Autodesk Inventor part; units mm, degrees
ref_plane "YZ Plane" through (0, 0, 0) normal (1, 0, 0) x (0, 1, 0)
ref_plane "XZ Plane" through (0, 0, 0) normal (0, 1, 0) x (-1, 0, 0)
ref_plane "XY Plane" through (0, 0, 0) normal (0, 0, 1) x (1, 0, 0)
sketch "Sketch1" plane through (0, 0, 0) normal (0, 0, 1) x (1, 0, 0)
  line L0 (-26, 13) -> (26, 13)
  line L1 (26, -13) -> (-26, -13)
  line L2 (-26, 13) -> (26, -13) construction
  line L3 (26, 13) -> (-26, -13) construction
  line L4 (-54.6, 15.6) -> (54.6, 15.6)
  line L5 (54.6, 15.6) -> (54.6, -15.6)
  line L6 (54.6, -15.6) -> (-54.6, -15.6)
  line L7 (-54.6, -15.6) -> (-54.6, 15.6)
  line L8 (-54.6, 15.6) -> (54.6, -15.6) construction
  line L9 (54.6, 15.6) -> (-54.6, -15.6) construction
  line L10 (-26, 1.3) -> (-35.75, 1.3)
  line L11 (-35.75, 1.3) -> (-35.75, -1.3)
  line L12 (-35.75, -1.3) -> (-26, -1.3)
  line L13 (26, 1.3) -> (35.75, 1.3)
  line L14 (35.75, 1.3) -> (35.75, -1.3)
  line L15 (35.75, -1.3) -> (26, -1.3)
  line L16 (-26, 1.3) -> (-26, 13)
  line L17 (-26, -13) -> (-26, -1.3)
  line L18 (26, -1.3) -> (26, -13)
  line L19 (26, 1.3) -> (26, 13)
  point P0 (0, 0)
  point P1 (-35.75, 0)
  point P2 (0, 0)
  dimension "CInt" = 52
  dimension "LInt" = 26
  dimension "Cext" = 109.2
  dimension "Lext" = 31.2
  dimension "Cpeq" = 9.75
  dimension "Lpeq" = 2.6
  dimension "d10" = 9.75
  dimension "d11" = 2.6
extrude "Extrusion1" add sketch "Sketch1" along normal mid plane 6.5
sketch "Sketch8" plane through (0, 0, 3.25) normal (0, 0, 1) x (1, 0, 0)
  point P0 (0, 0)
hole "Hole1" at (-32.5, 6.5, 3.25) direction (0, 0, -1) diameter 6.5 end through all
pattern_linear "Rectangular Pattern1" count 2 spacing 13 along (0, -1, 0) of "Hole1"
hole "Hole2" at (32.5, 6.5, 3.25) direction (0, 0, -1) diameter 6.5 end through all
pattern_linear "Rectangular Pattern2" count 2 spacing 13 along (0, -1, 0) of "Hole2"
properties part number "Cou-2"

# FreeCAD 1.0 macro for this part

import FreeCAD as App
import Part
import Sketcher
from FreeCAD import Vector


def add_polygon(sketch, points):
    """Adds a closed chain of lines whose ends are joined by coincident constraints."""
    first, n = sketch.GeometryCount, len(points)
    for a, b in zip(points, points[1:] + points[:1]):
        sketch.addGeometry(Part.LineSegment(App.Vector(*a, 0), App.Vector(*b, 0)), False)
    for i in range(n):
        sketch.addConstraint(Sketcher.Constraint("Coincident", first + i, 2, first + (i + 1) % n, 1))

doc = App.newDocument("Part")
params = doc.addObject("Spreadsheet::Sheet", "Params")
for row, (alias, value) in enumerate([
    ("sketch1_width", "52 mm"),
    ("sketch1_width2", "109.2 mm"),
    ("sketch1_height", "31.2 mm"),
    ("sketch1_height2", "2.6 mm"),
    ("sketch1_width3", "9.75 mm"),
    ("pad1_length", "6.5 mm"),
    ("sketch2_diameter", "6.5 mm"),
    ("hole_diameter", "6.5 mm"),
    ("linearpattern_pitch", "13 mm"),
    ("sketch3_diameter", "6.5 mm"),
    ("hole2_diameter", "6.5 mm"),
    ("linearpattern2_pitch", "13 mm"),
], start=1):
    params.set(f"A{row}", alias)
    params.set(f"B{row}", "=" + value)
    params.setAlias(f"B{row}", alias)

body = doc.addObject("PartDesign::Body", "Body")

# Sketch on XY plane
sketch1 = body.newObject("Sketcher::SketchObject", "Sketch")
sketch1.AttachmentSupport = (doc.getObject("XY_Plane"), [""])
sketch1.MapMode = "FlatFace"
add_polygon(sketch1, [(54.6, 15.6), (-54.6, 15.6), (-54.6, -15.6), (54.6, -15.6)])  # lines 0-3
add_polygon(sketch1, [(-26, 1.3), (-26, 13), (26, 13), (26, 1.3), (35.8, 1.3), (35.8, -1.3), (26, -1.3), (26, -13), (-26, -13), (-26, -1.3), (-35.8, -1.3), (-35.8, 1.3)])  # lines 4-15
sketch1.addConstraint(Sketcher.Constraint("Horizontal", 0))
sketch1.addConstraint(Sketcher.Constraint("Vertical", 1))
sketch1.addConstraint(Sketcher.Constraint("Horizontal", 2))
sketch1.addConstraint(Sketcher.Constraint("Vertical", 3))
sketch1.addConstraint(Sketcher.Constraint("Vertical", 4))
sketch1.addConstraint(Sketcher.Constraint("Horizontal", 5))
sketch1.addConstraint(Sketcher.Constraint("Vertical", 6))
sketch1.addConstraint(Sketcher.Constraint("Horizontal", 7))
sketch1.addConstraint(Sketcher.Constraint("Vertical", 8))
sketch1.addConstraint(Sketcher.Constraint("Horizontal", 9))
sketch1.addConstraint(Sketcher.Constraint("Vertical", 10))
sketch1.addConstraint(Sketcher.Constraint("Horizontal", 11))
sketch1.addConstraint(Sketcher.Constraint("Vertical", 12))
sketch1.addConstraint(Sketcher.Constraint("Horizontal", 13))
sketch1.addConstraint(Sketcher.Constraint("Vertical", 14))
sketch1.addConstraint(Sketcher.Constraint("Horizontal", 15))
sketch1.addConstraint(Sketcher.Constraint("Symmetric", 0, 2, 2, 2, -1, 1))
sketch1.addConstraint(Sketcher.Constraint("Symmetric", 4, 2, 10, 2, -1, 1))
sketch1.addConstraint(Sketcher.Constraint("Symmetric", 6, 2, 12, 2, -1, 1))
sketch1.addConstraint(Sketcher.Constraint("Symmetric", 8, 2, 14, 2, -1, 1))
sketch1.addConstraint(Sketcher.Constraint("Symmetric", 9, 2, 12, 2, -2))
sketch1.addConstraint(Sketcher.Constraint("DistanceX", 5, 1, 5, 2, 52.0))
sketch1.addConstraint(Sketcher.Constraint("DistanceX", 0, 2, 0, 1, 109.2))
sketch1.addConstraint(Sketcher.Constraint("DistanceY", 1, 2, 1, 1, 31.2))
sketch1.addConstraint(Sketcher.Constraint("DistanceY", 8, 2, 8, 1, 2.6))
sketch1.addConstraint(Sketcher.Constraint("DistanceY", 10, 2, 5, 2, 26.0))
sketch1.addConstraint(Sketcher.Constraint("DistanceX", 7, 1, 7, 2, 9.75))
sketch1.setExpression("Constraints[37]", "Params.sketch1_width")
sketch1.setExpression("Constraints[38]", "Params.sketch1_width2")
sketch1.setExpression("Constraints[39]", "Params.sketch1_height")
sketch1.setExpression("Constraints[40]", "Params.sketch1_height2")
sketch1.setExpression("Constraints[42]", "Params.sketch1_width3")
pad1 = body.newObject("PartDesign::Pad", "Pad")
pad1.Profile = sketch1
pad1.setExpression("Length", "Params.pad1_length")
pad1.Midplane = True

# Sketch on XY plane
sketch2 = body.newObject("Sketcher::SketchObject", "Sketch001")
sketch2.AttachmentSupport = (doc.getObject("XY_Plane"), [""])
sketch2.MapMode = "FlatFace"
sketch2.AttachmentOffset = App.Placement(Vector(0, 0, 3.25), App.Rotation())
sketch2.addGeometry(Part.Circle(Vector(-32.5, 6.5, 0), Vector(0, 0, 1), 3.2), False)
sketch2.addConstraint(Sketcher.Constraint("Diameter", 0, 6.5))
sketch2.addConstraint(Sketcher.Constraint("DistanceX", 0, 3, -1, 1, 32.5))
sketch2.addConstraint(Sketcher.Constraint("DistanceY", -1, 1, 0, 3, 6.5))
sketch2.setExpression("Constraints[0]", "Params.sketch2_diameter")
doc.recompute()
hole = body.newObject("PartDesign::Hole", "Hole")
hole.Profile = sketch2
hole.ThreadType = "None"
hole.setExpression("Diameter", "Params.hole_diameter")
hole.DepthType = "ThroughAll"
doc.recompute()

linearpattern = body.newObject("PartDesign::LinearPattern", "LinearPattern")
linearpattern.Originals = [hole]
linearpattern.Direction = (doc.getObject("Y_Axis"), [""])
linearpattern.Mode = "offset"
linearpattern.setExpression("Offset", "Params.linearpattern_pitch")
linearpattern.Occurrences = 2
linearpattern.Reversed = True
body.Tip = linearpattern

# Sketch on XY plane
sketch3 = body.newObject("Sketcher::SketchObject", "Sketch002")
sketch3.AttachmentSupport = (doc.getObject("XY_Plane"), [""])
sketch3.MapMode = "FlatFace"
sketch3.AttachmentOffset = App.Placement(Vector(0, 0, 3.25), App.Rotation())
sketch3.addGeometry(Part.Circle(Vector(32.5, 6.5, 0), Vector(0, 0, 1), 3.2), False)
sketch3.addConstraint(Sketcher.Constraint("Diameter", 0, 6.5))
sketch3.addConstraint(Sketcher.Constraint("DistanceX", -1, 1, 0, 3, 32.5))
sketch3.addConstraint(Sketcher.Constraint("DistanceY", -1, 1, 0, 3, 6.5))
sketch3.setExpression("Constraints[0]", "Params.sketch3_diameter")
doc.recompute()
hole2 = body.newObject("PartDesign::Hole", "Hole001")
hole2.Profile = sketch3
hole2.ThreadType = "None"
hole2.setExpression("Diameter", "Params.hole2_diameter")
hole2.DepthType = "ThroughAll"
doc.recompute()

linearpattern2 = body.newObject("PartDesign::LinearPattern", "LinearPattern001")
linearpattern2.Originals = [hole2]
linearpattern2.Direction = (doc.getObject("Y_Axis"), [""])
linearpattern2.Mode = "offset"
linearpattern2.setExpression("Offset", "Params.linearpattern2_pitch")
linearpattern2.Occurrences = 2
linearpattern2.Reversed = True
body.Tip = linearpattern2

doc.recompute()
